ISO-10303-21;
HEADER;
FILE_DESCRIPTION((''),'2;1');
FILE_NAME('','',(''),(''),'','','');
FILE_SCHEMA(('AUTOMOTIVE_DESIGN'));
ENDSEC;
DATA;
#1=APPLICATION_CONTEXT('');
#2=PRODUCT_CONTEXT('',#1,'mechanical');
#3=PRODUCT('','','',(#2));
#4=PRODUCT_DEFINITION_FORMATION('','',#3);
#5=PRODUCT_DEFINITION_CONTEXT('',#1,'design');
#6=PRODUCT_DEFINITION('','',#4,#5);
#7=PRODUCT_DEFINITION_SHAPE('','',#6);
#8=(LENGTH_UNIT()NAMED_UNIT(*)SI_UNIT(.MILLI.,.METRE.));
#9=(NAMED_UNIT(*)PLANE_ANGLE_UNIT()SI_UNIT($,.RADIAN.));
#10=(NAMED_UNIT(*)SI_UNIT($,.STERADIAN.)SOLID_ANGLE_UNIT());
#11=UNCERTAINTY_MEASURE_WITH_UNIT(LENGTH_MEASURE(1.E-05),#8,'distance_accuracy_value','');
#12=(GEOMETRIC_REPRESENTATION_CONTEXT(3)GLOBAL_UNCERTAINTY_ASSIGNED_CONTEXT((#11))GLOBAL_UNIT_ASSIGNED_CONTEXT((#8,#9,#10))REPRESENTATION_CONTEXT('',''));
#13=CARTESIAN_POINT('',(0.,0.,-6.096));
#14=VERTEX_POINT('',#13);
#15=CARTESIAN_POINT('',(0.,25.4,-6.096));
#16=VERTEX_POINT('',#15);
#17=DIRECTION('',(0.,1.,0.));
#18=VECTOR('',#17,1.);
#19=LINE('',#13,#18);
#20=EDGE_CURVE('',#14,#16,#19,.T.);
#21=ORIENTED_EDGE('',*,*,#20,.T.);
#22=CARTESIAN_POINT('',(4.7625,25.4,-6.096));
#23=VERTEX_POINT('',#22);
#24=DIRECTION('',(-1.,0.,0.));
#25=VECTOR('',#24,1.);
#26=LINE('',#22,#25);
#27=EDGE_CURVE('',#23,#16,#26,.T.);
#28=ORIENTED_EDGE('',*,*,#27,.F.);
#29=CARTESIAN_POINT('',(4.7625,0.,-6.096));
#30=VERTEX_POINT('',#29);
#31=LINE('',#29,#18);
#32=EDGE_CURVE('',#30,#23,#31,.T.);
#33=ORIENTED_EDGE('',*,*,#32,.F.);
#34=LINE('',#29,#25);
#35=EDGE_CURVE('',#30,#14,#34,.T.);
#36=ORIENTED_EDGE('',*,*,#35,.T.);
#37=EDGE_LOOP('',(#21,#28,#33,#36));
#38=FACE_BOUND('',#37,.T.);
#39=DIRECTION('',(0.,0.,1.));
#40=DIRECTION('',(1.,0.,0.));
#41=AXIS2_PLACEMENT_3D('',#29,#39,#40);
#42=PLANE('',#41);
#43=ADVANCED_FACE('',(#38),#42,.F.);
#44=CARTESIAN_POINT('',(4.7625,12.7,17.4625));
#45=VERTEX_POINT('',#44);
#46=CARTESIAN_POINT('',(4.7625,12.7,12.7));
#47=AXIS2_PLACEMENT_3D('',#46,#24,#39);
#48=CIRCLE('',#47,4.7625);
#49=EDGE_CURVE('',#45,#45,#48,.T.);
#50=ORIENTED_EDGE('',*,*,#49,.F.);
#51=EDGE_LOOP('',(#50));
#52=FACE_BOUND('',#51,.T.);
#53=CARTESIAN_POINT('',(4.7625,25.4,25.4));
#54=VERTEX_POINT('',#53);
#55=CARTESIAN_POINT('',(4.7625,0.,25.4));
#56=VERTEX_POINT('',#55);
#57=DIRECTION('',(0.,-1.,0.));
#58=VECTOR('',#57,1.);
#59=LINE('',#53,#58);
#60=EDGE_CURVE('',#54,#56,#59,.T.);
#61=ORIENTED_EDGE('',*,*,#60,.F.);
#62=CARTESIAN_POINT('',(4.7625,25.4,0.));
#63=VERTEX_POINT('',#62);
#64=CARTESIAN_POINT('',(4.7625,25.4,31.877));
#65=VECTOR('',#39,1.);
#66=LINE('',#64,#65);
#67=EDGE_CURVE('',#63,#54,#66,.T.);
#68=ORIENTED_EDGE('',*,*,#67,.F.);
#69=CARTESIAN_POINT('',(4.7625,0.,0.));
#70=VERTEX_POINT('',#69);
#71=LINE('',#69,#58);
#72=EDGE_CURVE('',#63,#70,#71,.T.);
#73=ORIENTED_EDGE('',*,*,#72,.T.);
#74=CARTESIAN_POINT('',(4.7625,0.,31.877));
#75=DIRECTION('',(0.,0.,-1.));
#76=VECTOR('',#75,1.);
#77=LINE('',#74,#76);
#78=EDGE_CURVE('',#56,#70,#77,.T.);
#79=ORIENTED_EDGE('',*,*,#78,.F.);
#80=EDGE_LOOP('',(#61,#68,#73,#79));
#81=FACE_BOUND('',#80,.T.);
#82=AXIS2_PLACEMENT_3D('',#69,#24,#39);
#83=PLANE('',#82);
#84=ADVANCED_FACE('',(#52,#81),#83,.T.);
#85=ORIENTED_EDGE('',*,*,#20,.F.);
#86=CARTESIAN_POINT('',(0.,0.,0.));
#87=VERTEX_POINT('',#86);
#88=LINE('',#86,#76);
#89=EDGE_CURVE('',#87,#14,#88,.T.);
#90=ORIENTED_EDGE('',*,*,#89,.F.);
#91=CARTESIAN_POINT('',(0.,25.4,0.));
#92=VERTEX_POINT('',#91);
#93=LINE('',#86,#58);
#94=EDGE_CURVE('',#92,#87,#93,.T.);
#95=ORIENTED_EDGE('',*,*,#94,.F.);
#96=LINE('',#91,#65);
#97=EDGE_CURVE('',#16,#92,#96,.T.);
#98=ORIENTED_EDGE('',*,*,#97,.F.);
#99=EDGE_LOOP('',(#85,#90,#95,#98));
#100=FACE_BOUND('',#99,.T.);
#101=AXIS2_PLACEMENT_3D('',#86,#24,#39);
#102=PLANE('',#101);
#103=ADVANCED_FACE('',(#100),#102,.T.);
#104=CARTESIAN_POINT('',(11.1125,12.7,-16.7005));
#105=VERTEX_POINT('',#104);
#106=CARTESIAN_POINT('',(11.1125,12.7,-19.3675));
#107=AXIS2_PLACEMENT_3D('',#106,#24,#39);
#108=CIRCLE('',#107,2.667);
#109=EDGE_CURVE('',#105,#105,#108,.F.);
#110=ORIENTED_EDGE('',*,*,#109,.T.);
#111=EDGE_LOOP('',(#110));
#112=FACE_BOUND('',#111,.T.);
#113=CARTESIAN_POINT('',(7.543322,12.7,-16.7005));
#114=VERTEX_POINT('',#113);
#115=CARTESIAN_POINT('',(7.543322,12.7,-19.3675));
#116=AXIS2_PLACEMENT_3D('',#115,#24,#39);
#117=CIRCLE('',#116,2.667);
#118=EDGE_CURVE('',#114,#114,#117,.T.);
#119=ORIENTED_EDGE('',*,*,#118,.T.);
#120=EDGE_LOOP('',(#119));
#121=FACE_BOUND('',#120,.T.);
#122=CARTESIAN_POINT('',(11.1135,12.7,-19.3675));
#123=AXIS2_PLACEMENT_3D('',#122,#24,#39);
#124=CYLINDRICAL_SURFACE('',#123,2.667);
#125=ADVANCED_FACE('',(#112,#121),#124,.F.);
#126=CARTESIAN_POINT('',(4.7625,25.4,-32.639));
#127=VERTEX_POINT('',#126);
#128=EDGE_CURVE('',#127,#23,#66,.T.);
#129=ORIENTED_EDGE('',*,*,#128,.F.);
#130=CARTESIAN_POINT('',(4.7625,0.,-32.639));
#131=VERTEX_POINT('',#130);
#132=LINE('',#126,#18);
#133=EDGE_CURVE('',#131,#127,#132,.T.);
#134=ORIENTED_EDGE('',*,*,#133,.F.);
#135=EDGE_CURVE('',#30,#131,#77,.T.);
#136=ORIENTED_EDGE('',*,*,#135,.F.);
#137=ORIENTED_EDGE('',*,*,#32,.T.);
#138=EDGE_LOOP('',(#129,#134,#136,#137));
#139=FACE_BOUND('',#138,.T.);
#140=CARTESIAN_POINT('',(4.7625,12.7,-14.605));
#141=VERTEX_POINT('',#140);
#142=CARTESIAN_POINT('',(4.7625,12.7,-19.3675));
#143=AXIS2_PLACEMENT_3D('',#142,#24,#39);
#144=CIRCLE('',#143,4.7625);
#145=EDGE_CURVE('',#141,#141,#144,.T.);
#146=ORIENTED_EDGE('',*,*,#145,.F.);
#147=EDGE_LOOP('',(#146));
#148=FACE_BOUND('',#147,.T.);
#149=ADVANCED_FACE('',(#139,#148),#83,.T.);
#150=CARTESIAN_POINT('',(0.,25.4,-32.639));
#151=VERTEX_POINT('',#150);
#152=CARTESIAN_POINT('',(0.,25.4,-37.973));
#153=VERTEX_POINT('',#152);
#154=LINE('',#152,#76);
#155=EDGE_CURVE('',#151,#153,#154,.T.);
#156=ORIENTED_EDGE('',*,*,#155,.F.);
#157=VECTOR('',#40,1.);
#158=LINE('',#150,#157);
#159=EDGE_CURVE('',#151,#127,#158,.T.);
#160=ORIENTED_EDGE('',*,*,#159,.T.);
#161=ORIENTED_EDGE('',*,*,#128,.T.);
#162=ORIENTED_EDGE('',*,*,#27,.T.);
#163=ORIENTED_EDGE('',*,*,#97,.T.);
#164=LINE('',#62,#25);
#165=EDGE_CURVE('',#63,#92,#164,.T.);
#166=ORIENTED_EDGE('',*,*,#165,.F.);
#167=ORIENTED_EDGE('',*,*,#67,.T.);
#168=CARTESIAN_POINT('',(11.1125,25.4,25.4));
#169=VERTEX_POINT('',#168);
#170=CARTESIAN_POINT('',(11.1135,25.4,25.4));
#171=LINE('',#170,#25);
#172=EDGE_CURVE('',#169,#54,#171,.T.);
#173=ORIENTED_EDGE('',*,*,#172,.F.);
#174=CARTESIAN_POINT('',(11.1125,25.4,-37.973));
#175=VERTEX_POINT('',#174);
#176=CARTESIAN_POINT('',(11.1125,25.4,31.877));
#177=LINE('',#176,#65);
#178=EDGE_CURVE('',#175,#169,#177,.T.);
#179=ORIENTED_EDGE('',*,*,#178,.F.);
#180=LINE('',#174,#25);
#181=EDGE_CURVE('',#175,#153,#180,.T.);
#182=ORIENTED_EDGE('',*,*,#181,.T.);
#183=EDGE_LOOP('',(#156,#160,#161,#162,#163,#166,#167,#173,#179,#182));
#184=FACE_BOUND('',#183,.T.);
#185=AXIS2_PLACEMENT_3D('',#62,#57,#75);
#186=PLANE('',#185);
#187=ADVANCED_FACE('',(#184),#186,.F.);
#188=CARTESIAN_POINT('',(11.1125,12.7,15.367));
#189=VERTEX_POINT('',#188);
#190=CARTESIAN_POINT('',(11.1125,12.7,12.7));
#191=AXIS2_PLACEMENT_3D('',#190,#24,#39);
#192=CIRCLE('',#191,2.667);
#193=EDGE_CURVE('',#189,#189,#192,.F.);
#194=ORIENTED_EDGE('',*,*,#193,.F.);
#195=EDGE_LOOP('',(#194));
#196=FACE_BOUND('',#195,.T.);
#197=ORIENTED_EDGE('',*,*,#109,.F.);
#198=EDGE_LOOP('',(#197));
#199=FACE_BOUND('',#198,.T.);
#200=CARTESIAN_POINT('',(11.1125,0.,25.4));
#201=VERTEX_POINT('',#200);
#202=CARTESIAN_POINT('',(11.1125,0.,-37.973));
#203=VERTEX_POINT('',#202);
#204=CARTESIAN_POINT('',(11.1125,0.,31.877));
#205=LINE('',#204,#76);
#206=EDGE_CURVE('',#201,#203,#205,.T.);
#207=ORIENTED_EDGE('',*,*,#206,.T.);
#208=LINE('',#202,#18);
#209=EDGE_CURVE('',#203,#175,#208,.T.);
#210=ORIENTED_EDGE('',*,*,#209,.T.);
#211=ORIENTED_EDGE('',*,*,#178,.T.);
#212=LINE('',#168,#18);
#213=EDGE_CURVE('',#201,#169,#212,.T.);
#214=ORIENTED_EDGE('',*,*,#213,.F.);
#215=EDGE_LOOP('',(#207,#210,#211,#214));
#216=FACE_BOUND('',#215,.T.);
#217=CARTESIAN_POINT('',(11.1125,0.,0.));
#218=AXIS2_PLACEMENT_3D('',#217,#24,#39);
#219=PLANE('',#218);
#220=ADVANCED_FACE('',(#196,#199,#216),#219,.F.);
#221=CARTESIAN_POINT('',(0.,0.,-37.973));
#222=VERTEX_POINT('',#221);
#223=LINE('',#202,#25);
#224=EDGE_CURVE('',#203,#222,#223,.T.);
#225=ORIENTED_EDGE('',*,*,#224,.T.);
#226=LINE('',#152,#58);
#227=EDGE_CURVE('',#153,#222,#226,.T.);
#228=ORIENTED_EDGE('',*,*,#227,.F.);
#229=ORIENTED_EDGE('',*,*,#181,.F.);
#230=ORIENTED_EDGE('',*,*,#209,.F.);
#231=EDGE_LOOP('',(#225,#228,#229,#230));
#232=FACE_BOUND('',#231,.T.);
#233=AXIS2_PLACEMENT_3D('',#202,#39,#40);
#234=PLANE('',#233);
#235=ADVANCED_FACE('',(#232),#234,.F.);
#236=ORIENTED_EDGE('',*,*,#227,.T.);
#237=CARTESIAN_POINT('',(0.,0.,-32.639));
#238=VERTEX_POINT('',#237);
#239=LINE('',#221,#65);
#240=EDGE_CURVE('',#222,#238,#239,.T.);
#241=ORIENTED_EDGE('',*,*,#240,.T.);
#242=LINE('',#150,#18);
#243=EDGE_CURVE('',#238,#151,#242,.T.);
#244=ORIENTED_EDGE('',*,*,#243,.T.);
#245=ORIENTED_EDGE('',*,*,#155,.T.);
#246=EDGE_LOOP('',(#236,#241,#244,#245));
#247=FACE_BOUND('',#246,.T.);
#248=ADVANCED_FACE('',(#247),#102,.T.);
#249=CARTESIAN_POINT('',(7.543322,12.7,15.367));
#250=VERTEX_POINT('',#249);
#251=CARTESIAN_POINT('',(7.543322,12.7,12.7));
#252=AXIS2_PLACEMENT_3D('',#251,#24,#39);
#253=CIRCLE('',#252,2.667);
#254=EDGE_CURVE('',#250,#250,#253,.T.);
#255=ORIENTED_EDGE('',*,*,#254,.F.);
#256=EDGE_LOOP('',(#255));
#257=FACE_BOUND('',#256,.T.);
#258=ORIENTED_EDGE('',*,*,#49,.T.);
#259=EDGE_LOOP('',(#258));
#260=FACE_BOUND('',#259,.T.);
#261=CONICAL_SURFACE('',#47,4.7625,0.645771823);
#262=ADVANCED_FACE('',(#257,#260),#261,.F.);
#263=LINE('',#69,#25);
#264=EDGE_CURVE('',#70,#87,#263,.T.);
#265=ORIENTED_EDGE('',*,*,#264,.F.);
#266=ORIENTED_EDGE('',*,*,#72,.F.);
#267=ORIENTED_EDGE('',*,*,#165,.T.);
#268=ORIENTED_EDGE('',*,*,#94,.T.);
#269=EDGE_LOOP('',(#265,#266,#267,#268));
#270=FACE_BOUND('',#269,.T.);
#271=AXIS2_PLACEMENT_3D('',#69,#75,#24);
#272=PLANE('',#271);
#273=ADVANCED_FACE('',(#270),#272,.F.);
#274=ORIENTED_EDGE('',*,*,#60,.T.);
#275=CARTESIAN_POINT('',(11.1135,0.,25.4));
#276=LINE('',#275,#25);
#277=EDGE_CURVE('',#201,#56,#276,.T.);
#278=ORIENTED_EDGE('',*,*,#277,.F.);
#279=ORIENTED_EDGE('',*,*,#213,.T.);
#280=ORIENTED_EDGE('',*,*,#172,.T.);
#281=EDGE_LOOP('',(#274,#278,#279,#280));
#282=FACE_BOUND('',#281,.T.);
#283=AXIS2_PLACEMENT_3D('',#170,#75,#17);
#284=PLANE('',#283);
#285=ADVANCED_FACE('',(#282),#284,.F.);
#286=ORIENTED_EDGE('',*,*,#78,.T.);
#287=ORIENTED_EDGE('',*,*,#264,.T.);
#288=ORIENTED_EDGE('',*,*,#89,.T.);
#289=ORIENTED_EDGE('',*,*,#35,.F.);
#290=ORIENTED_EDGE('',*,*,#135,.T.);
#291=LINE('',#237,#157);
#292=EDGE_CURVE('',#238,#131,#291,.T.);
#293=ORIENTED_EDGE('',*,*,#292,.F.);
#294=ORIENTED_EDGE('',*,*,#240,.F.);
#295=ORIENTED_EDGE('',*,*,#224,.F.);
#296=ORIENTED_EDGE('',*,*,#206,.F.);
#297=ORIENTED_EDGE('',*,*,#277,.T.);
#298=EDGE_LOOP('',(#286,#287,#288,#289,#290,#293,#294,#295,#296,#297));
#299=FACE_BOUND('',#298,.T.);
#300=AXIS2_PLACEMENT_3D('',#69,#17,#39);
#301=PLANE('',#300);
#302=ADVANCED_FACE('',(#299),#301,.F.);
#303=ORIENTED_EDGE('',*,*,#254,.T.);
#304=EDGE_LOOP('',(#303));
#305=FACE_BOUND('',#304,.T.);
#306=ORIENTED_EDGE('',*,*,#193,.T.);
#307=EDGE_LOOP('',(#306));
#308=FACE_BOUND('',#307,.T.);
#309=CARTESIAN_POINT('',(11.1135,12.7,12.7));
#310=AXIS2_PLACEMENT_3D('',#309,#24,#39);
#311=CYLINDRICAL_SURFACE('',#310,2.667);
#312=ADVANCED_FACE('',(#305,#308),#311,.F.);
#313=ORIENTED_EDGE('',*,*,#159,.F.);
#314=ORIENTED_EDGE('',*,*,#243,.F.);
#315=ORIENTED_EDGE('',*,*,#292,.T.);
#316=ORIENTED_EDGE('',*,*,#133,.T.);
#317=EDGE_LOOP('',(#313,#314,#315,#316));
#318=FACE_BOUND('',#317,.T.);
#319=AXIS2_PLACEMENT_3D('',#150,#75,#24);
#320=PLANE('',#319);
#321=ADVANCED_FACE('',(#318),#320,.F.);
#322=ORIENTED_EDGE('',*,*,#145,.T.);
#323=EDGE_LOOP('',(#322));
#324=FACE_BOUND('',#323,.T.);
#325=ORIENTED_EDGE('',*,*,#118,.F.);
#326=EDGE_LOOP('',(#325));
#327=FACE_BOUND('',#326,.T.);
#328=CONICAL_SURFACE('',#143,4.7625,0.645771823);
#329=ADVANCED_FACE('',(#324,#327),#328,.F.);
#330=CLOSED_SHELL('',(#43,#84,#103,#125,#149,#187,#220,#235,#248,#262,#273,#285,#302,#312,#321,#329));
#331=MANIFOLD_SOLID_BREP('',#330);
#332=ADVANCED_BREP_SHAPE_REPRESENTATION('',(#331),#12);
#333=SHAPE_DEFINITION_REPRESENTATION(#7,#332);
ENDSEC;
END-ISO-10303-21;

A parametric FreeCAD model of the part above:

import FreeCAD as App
import Part
import Sketcher
from FreeCAD import Vector
Q = App.Units.Quantity


def add_polygon(sketch, points):
    """Adds a closed chain of lines whose ends are joined by coincident constraints."""
    first, n = sketch.GeometryCount, len(points)
    for a, b in zip(points, points[1:] + points[:1]):
        sketch.addGeometry(Part.LineSegment(App.Vector(*a, 0), App.Vector(*b, 0)), False)
    for i in range(n):
        sketch.addConstraint(Sketcher.Constraint("Coincident", first + i, 2, first + (i + 1) % n, 1))

doc = App.newDocument("Part")
body = doc.addObject("PartDesign::Body", "Body")

# Sketch on YZ plane
sketch1 = body.newObject("Sketcher::SketchObject", "Sketch")
sketch1.AttachmentSupport = (doc.getObject("YZ_Plane"), [""])
sketch1.MapMode = "FlatFace"
add_polygon(sketch1, [(25, 0), (0, 0), (0, -6), (25, -6)])  # lines 0-3
sketch1.addConstraint([
    Sketcher.Constraint("Horizontal", 0),
    Sketcher.Constraint("Vertical", 1),
    Sketcher.Constraint("Horizontal", 2),
    Sketcher.Constraint("Vertical", 3),
    Sketcher.Constraint("Coincident", 0, 2, -1, 1),
    Sketcher.Constraint("DistanceX", 0, 2, 0, 1, Q("1 in")),
    Sketcher.Constraint("DistanceY", 1, 2, 1, 1, Q("0.24 in")),
])
pad1 = body.newObject("PartDesign::Pad", "Pad")
pad1.Profile = sketch1
pad1.Length = Q("0.1875 in")

# Sketch on YZ plane
sketch2 = body.newObject("Sketcher::SketchObject", "Sketch001")
sketch2.AttachmentSupport = (doc.getObject("YZ_Plane"), [""])
sketch2.MapMode = "FlatFace"
sketch2.AttachmentOffset = App.Placement(Vector(0, 0, 0.1875 * 25.4), App.Rotation())
add_polygon(sketch2, [(25, 32), (0, 32), (0, -38), (25, -38)])  # lines 0-3
sketch2.addConstraint([
    Sketcher.Constraint("Horizontal", 0),
    Sketcher.Constraint("Vertical", 1),
    Sketcher.Constraint("Horizontal", 2),
    Sketcher.Constraint("Vertical", 3),
    Sketcher.Constraint("PointOnObject", 0, 2, -2),
    Sketcher.Constraint("DistanceX", 0, 2, 0, 1, Q("1 in")),
    Sketcher.Constraint("DistanceY", 1, 2, 1, 1, Q("2.75 in")),
    Sketcher.Constraint("DistanceY", -1, 1, 0, 2, Q("1.255 in")),
])
pad2 = body.newObject("PartDesign::Pad", "Pad001")
pad2.Profile = sketch2
pad2.Length = Q("0.25 in")

# Sketch on YZ plane
sketch3 = body.newObject("Sketcher::SketchObject", "Sketch002")
sketch3.AttachmentSupport = (doc.getObject("YZ_Plane"), [""])
sketch3.MapMode = "FlatFace"
sketch3.AttachmentOffset = App.Placement(Vector(0, 0, 0.1875 * 25.4), App.Rotation())
add_polygon(sketch3, [(25, -38), (0, -38), (0, -33), (25, -33)])  # lines 0-3
sketch3.addConstraint([
    Sketcher.Constraint("Horizontal", 0),
    Sketcher.Constraint("Vertical", 1),
    Sketcher.Constraint("Horizontal", 2),
    Sketcher.Constraint("Vertical", 3),
    Sketcher.Constraint("PointOnObject", 0, 2, -2),
    Sketcher.Constraint("DistanceX", 0, 2, 0, 1, Q("1 in")),
    Sketcher.Constraint("DistanceY", 1, 1, 1, 2, Q("0.21 in")),
    Sketcher.Constraint("DistanceY", 0, 2, -1, 1, Q("1.495 in")),
])
pad3 = body.newObject("PartDesign::Pad", "Pad002")
pad3.Profile = sketch3
pad3.Length = Q("0.1875 in")
pad3.Reversed = True

# Sketch on YZ plane
sketch4 = body.newObject("Sketcher::SketchObject", "Sketch003")
sketch4.AttachmentSupport = (doc.getObject("YZ_Plane"), [""])
sketch4.MapMode = "FlatFace"
sketch4.AttachmentOffset = App.Placement(Vector(0, 0, 0.1875 * 25.4), App.Rotation())
add_polygon(sketch4, [(25, 25), (0, 25), (0, 32), (25, 32)])  # lines 0-3
sketch4.addConstraint([
    Sketcher.Constraint("Horizontal", 0),
    Sketcher.Constraint("Vertical", 1),
    Sketcher.Constraint("Horizontal", 2),
    Sketcher.Constraint("Vertical", 3),
    Sketcher.Constraint("PointOnObject", 0, 2, -2),
    Sketcher.Constraint("DistanceX", 0, 2, 0, 1, Q("1 in")),
    Sketcher.Constraint("DistanceY", -1, 1, 0, 2, Q("1 in")),
    Sketcher.Constraint("DistanceY", 1, 1, 1, 2, Q("0.255 in")),
])
pocket1 = body.newObject("PartDesign::Pocket", "Pocket")
pocket1.Profile = sketch4
pocket1.Type = "UpToFirst"
pocket1.Reversed = True

# Sketch on YZ plane
sketch5 = body.newObject("Sketcher::SketchObject", "Sketch004")
sketch5.AttachmentSupport = (doc.getObject("YZ_Plane"), [""])
sketch5.MapMode = "FlatFace"
sketch5.AttachmentOffset = App.Placement(Vector(0, 0, 0.1875 * 25.4), App.Rotation())
sketch5.addGeometry(Part.Circle(Vector(12.7, -19.4, 0), Vector(0, 0, 1), 2.7), False)
sketch5.addConstraint([
    Sketcher.Constraint("Diameter", 0, Q("0.21 in")),
    Sketcher.Constraint("DistanceX", -1, 1, 0, 3, Q("0.5 in")),
    Sketcher.Constraint("DistanceY", 0, 3, -1, 1, Q("0.7625 in")),
])
pocket2 = body.newObject("PartDesign::Pocket", "Pocket001")
pocket2.Profile = sketch5
pocket2.Type = "UpToFirst"
pocket2.Reversed = True

# Sketch on YZ plane
sketch6 = body.newObject("Sketcher::SketchObject", "Sketch005")
sketch6.AttachmentSupport = (doc.getObject("YZ_Plane"), [""])
sketch6.MapMode = "FlatFace"
sketch6.AttachmentOffset = App.Placement(Vector(0, 0, 0.1875 * 25.4), App.Rotation())
sketch6.addGeometry(Part.Circle(Vector(12.7, 12.7, 0), Vector(0, 0, 1), 2.7), False)
sketch6.addConstraint([
    Sketcher.Constraint("Diameter", 0, Q("0.21 in")),
    Sketcher.Constraint("DistanceX", -1, 1, 0, 3, Q("0.5 in")),
    Sketcher.Constraint("DistanceY", -1, 1, 0, 3, Q("0.5 in")),
])
pocket3 = body.newObject("PartDesign::Pocket", "Pocket002")
pocket3.Profile = sketch6
pocket3.Type = "UpToFirst"
pocket3.Reversed = True

# Sketch on YZ plane
sketch7 = body.newObject("Sketcher::SketchObject", "Sketch006")
sketch7.AttachmentSupport = (doc.getObject("YZ_Plane"), [""])
sketch7.MapMode = "FlatFace"
sketch7.AttachmentOffset = App.Placement(Vector(0, 0, 0.1875 * 25.4), App.Rotation())
sketch7.addGeometry([
    Part.Circle(Vector(12.7, 12.7, 0), Vector(0, 0, 1), 4.8),
    Part.Circle(Vector(12.7, -19.4, 0), Vector(0, 0, 1), 4.8),
], False)
sketch7.addConstraint([
    Sketcher.Constraint("Equal", 0, 1),
    Sketcher.Constraint("Vertical", 0, 3, 1, 3),
    Sketcher.Constraint("Diameter", 0, Q("0.375 in")),
    Sketcher.Constraint("DistanceX", -1, 1, 0, 3, Q("0.5 in")),
    Sketcher.Constraint("DistanceY", -1, 1, 0, 3, Q("0.5 in")),
    Sketcher.Constraint("DistanceY", 1, 3, -1, 1, Q("0.7625 in")),
])
pocket4 = body.newObject("PartDesign::Pocket", "Pocket003")
pocket4.Profile = sketch7
pocket4.Length = Q("0.15 in")
pocket4.Reversed = True
pocket4.TaperAngle = -37

doc.recompute()
